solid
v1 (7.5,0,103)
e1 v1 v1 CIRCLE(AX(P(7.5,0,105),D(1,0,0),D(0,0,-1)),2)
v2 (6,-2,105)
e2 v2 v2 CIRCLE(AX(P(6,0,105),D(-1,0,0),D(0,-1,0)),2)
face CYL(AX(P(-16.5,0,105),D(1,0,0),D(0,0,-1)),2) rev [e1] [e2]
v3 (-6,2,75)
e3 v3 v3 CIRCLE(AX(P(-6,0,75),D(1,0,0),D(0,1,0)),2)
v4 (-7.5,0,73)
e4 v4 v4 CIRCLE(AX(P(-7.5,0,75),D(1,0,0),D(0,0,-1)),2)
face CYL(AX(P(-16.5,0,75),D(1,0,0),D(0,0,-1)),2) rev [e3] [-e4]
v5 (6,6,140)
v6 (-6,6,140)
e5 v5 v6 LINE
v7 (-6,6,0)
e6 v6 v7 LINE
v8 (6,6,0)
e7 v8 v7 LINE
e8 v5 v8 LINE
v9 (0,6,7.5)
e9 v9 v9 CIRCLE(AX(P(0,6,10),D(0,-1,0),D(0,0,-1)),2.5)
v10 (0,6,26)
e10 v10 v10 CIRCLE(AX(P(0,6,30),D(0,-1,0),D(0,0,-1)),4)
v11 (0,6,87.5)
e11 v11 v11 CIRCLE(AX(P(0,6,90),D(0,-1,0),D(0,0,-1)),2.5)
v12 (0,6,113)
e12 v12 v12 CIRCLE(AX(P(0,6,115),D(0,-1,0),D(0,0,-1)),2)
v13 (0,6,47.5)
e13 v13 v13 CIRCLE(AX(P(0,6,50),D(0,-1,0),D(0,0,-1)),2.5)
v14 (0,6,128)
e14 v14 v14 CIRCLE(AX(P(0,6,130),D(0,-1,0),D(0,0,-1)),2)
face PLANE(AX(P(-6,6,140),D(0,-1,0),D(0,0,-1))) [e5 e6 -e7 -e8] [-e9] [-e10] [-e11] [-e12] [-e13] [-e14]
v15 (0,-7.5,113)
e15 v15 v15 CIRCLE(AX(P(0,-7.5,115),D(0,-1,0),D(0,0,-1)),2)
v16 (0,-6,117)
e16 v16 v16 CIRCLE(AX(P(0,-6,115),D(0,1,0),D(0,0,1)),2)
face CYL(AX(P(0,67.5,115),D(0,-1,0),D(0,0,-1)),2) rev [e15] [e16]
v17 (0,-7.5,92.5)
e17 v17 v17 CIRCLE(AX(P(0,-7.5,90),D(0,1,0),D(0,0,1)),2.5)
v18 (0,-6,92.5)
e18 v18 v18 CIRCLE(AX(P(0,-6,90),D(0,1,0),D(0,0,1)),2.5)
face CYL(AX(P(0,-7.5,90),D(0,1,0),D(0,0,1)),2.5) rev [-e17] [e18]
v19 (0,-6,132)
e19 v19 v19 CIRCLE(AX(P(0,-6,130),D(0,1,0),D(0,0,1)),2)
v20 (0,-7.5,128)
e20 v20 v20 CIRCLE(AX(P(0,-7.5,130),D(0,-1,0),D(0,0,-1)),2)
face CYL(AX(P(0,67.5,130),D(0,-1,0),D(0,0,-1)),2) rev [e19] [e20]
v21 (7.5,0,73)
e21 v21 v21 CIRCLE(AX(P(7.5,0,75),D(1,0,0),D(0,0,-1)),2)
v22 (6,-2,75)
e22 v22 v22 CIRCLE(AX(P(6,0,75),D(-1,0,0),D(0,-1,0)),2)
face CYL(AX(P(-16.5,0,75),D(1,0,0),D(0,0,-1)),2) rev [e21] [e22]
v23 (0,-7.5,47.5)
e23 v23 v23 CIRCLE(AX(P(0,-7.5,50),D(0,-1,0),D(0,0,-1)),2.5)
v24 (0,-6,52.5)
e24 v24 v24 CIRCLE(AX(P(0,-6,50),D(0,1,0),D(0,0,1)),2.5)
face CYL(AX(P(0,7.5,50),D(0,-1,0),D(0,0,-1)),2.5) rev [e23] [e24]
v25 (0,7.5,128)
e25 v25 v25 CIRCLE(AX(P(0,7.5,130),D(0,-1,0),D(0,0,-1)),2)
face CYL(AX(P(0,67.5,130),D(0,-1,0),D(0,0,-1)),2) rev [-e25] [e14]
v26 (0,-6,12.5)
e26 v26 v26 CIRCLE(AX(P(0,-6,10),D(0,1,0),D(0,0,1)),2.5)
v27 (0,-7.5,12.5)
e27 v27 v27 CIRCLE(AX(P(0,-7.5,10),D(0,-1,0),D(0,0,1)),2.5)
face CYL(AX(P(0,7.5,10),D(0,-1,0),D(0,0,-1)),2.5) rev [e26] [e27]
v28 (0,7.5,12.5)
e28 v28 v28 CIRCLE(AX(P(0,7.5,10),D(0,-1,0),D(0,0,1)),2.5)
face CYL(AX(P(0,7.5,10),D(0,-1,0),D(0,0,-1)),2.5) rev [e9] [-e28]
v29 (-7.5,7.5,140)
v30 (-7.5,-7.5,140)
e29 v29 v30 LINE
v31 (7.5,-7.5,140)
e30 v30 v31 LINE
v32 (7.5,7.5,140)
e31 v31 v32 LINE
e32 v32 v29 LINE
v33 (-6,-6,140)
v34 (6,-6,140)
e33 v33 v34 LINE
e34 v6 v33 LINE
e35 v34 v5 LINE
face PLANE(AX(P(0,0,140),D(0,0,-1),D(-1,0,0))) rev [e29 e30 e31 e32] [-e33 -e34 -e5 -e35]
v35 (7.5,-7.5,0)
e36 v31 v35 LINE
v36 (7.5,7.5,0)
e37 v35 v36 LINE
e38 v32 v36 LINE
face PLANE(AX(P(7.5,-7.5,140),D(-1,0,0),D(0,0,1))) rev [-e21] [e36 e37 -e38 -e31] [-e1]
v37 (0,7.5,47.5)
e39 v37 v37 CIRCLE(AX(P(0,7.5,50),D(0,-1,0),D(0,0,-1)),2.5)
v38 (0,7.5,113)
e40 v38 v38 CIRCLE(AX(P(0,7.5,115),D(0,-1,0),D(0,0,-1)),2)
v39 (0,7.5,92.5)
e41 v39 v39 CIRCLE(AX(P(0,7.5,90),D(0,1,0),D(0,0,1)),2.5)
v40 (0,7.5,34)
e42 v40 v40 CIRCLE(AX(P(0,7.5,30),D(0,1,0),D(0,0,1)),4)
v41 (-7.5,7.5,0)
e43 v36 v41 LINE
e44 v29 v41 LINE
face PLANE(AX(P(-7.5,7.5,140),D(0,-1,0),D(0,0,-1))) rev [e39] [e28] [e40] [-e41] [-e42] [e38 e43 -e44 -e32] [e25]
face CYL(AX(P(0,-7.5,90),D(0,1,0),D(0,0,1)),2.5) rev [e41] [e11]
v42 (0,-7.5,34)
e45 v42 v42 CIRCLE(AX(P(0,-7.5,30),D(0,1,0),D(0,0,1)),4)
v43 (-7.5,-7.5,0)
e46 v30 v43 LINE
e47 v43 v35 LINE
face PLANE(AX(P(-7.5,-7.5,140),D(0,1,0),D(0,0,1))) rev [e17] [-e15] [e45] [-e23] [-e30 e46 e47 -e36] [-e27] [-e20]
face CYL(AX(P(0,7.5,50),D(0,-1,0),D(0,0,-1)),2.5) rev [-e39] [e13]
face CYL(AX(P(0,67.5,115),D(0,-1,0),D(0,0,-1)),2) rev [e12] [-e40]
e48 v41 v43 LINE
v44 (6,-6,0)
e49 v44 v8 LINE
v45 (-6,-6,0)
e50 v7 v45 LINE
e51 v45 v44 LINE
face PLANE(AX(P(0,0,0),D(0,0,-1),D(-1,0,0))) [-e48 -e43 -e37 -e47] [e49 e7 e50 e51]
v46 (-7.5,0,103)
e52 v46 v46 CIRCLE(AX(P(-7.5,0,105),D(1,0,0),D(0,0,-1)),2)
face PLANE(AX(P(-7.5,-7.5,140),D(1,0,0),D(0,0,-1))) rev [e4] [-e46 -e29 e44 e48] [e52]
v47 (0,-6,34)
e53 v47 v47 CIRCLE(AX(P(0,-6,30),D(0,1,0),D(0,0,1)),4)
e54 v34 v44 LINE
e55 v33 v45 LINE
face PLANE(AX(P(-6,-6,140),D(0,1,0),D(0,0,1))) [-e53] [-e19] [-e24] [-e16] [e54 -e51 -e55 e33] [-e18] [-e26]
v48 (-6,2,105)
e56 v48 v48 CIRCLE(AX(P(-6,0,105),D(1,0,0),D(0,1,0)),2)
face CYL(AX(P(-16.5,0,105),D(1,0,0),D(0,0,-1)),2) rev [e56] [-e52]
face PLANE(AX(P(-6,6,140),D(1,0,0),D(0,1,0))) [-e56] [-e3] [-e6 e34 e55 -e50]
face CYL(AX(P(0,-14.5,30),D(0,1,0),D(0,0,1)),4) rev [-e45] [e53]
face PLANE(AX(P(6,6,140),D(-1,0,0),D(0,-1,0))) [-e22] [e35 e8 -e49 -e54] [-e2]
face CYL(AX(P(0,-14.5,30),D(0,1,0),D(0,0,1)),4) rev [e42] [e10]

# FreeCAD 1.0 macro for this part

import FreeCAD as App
import Part
import Sketcher
from FreeCAD import Vector

doc = App.newDocument("Part")
body = doc.addObject("PartDesign::Body", "Body")

# Sketch on XY plane
sketch1 = body.newObject("Sketcher::SketchObject", "Sketch")
sketch1.AttachmentSupport = (doc.getObject("XY_Plane"), [""])
sketch1.MapMode = "FlatFace"
sketch1.addGeometry([
    Part.LineSegment(Vector(-8, 8, 0), Vector(-8, -8, 0)),  # 0
    Part.LineSegment(Vector(-8, -8, 0), Vector(8, -8, 0)),  # 1
    Part.LineSegment(Vector(8, -8, 0), Vector(8, 8, 0)),  # 2
    Part.LineSegment(Vector(8, 8, 0), Vector(-8, 8, 0)),  # 3
    Part.LineSegment(Vector(6, -6, 0), Vector(-6, -6, 0)),  # 4
    Part.LineSegment(Vector(-6, -6, 0), Vector(-6, 6, 0)),  # 5
    Part.LineSegment(Vector(-6, 6, 0), Vector(6, 6, 0)),  # 6
    Part.LineSegment(Vector(6, 6, 0), Vector(6, -6, 0)),  # 7
], False)
sketch1.addConstraint([
    Sketcher.Constraint("Coincident", 0, 2, 1, 1),
    Sketcher.Constraint("Coincident", 1, 2, 2, 1),
    Sketcher.Constraint("Coincident", 2, 2, 3, 1),
    Sketcher.Constraint("Coincident", 3, 2, 0, 1),
    Sketcher.Constraint("Coincident", 4, 2, 5, 1),
    Sketcher.Constraint("Coincident", 5, 2, 6, 1),
    Sketcher.Constraint("Coincident", 6, 2, 7, 1),
    Sketcher.Constraint("Coincident", 7, 2, 4, 1),
    Sketcher.Constraint("Vertical", 0),
    Sketcher.Constraint("Horizontal", 1),
    Sketcher.Constraint("Vertical", 2),
    Sketcher.Constraint("Horizontal", 3),
    Sketcher.Constraint("Horizontal", 4),
    Sketcher.Constraint("Vertical", 5),
    Sketcher.Constraint("Horizontal", 6),
    Sketcher.Constraint("Vertical", 7),
    Sketcher.Constraint("Symmetric", 0, 2, 2, 2, -1, 1),
    Sketcher.Constraint("Symmetric", 4, 2, 6, 2, -1, 1),
    Sketcher.Constraint("Equal", 3, 0),
    Sketcher.Constraint("Equal", 6, 5),
    Sketcher.Constraint("DistanceX", 1, 1, 1, 2, 15.0),
    Sketcher.Constraint("DistanceX", 4, 2, 4, 1, 12.0),
])
pad1 = body.newObject("PartDesign::Pad", "Pad")
pad1.Profile = sketch1
pad1.Length = 140

# Sketch on XZ plane
sketch2 = body.newObject("Sketcher::SketchObject", "Sketch001")
sketch2.AttachmentSupport = (doc.getObject("XZ_Plane"), [""])
sketch2.MapMode = "FlatFace"
sketch2.AttachmentOffset = App.Placement(Vector(0, 0, -7.5), App.Rotation())
sketch2.addGeometry(Part.Circle(Vector(0, 30, 0), Vector(0, 0, 1), 4), False)
sketch2.addConstraint([
    Sketcher.Constraint("PointOnObject", 0, 3, -2),
    Sketcher.Constraint("Diameter", 0, 8.0),
    Sketcher.Constraint("DistanceY", -1, 1, 0, 3, 30.0),
])
pocket1 = body.newObject("PartDesign::Pocket", "Pocket")
pocket1.Profile = sketch2
pocket1.Length = 22
pocket1.Reversed = True

# Sketch on XZ plane
sketch3 = body.newObject("Sketcher::SketchObject", "Sketch002")
sketch3.AttachmentSupport = (doc.getObject("XZ_Plane"), [""])
sketch3.MapMode = "FlatFace"
sketch3.AttachmentOffset = App.Placement(Vector(0, 0, 7.5), App.Rotation())
sketch3.addGeometry([
    Part.Circle(Vector(0, 130, 0), Vector(0, 0, 1), 2),
    Part.Circle(Vector(0, 115, 0), Vector(0, 0, 1), 2),
], False)
sketch3.addConstraint([
    Sketcher.Constraint("Equal", 0, 1),
    Sketcher.Constraint("PointOnObject", 0, 3, -2),
    Sketcher.Constraint("PointOnObject", 1, 3, -2),
    Sketcher.Constraint("Diameter", 0, 4.0),
    Sketcher.Constraint("DistanceY", -1, 1, 0, 3, 130.0),
    Sketcher.Constraint("DistanceY", -1, 1, 1, 3, 115.0),
])
pocket2 = body.newObject("PartDesign::Pocket", "Pocket001")
pocket2.Profile = sketch3
pocket2.Length = 75

# Sketch on YZ plane
sketch4 = body.newObject("Sketcher::SketchObject", "Sketch003")
sketch4.AttachmentSupport = (doc.getObject("YZ_Plane"), [""])
sketch4.MapMode = "FlatFace"
sketch4.AttachmentOffset = App.Placement(Vector(0, 0, 7.5), App.Rotation())
sketch4.addGeometry([
    Part.Circle(Vector(0, 105, 0), Vector(0, 0, 1), 2),
    Part.Circle(Vector(0, 75, 0), Vector(0, 0, 1), 2),
], False)
sketch4.addConstraint([
    Sketcher.Constraint("Equal", 0, 1),
    Sketcher.Constraint("PointOnObject", 0, 3, -2),
    Sketcher.Constraint("PointOnObject", 1, 3, -2),
    Sketcher.Constraint("Diameter", 0, 4.0),
    Sketcher.Constraint("DistanceY", -1, 1, 0, 3, 105.0),
    Sketcher.Constraint("DistanceY", -1, 1, 1, 3, 75.0),
])
pocket3 = body.newObject("PartDesign::Pocket", "Pocket002")
pocket3.Profile = sketch4
pocket3.Length = 24

# Sketch on XZ plane
sketch5 = body.newObject("Sketcher::SketchObject", "Sketch004")
sketch5.AttachmentSupport = (doc.getObject("XZ_Plane"), [""])
sketch5.MapMode = "FlatFace"
sketch5.AttachmentOffset = App.Placement(Vector(0, 0, 7.5), App.Rotation())
sketch5.addGeometry([
    Part.Circle(Vector(0, 50, 0), Vector(0, 0, 1), 2.5),
    Part.Circle(Vector(0, 10, 0), Vector(0, 0, 1), 2.5),
], False)
sketch5.addConstraint([
    Sketcher.Constraint("Equal", 0, 1),
    Sketcher.Constraint("PointOnObject", 0, 3, -2),
    Sketcher.Constraint("PointOnObject", 1, 3, -2),
    Sketcher.Constraint("Diameter", 0, 5.0),
    Sketcher.Constraint("DistanceY", -1, 1, 0, 3, 50.0),
    Sketcher.Constraint("DistanceY", -1, 1, 1, 3, 10.0),
])
pocket4 = body.newObject("PartDesign::Pocket", "Pocket003")
pocket4.Profile = sketch5
pocket4.Type = "ThroughAll"

# Sketch on XZ plane
sketch6 = body.newObject("Sketcher::SketchObject", "Sketch005")
sketch6.AttachmentSupport = (doc.getObject("XZ_Plane"), [""])
sketch6.MapMode = "FlatFace"
sketch6.AttachmentOffset = App.Placement(Vector(0, 0, -7.5), App.Rotation())
sketch6.addGeometry(Part.Circle(Vector(0, 90, 0), Vector(0, 0, 1), 2.5), False)
sketch6.addConstraint([
    Sketcher.Constraint("PointOnObject", 0, 3, -2),
    Sketcher.Constraint("Diameter", 0, 5.0),
    Sketcher.Constraint("DistanceY", -1, 1, 0, 3, 90.0),
])
pocket5 = body.newObject("PartDesign::Pocket", "Pocket004")
pocket5.Profile = sketch6
pocket5.Type = "ThroughAll"
pocket5.Reversed = True

doc.recompute()
